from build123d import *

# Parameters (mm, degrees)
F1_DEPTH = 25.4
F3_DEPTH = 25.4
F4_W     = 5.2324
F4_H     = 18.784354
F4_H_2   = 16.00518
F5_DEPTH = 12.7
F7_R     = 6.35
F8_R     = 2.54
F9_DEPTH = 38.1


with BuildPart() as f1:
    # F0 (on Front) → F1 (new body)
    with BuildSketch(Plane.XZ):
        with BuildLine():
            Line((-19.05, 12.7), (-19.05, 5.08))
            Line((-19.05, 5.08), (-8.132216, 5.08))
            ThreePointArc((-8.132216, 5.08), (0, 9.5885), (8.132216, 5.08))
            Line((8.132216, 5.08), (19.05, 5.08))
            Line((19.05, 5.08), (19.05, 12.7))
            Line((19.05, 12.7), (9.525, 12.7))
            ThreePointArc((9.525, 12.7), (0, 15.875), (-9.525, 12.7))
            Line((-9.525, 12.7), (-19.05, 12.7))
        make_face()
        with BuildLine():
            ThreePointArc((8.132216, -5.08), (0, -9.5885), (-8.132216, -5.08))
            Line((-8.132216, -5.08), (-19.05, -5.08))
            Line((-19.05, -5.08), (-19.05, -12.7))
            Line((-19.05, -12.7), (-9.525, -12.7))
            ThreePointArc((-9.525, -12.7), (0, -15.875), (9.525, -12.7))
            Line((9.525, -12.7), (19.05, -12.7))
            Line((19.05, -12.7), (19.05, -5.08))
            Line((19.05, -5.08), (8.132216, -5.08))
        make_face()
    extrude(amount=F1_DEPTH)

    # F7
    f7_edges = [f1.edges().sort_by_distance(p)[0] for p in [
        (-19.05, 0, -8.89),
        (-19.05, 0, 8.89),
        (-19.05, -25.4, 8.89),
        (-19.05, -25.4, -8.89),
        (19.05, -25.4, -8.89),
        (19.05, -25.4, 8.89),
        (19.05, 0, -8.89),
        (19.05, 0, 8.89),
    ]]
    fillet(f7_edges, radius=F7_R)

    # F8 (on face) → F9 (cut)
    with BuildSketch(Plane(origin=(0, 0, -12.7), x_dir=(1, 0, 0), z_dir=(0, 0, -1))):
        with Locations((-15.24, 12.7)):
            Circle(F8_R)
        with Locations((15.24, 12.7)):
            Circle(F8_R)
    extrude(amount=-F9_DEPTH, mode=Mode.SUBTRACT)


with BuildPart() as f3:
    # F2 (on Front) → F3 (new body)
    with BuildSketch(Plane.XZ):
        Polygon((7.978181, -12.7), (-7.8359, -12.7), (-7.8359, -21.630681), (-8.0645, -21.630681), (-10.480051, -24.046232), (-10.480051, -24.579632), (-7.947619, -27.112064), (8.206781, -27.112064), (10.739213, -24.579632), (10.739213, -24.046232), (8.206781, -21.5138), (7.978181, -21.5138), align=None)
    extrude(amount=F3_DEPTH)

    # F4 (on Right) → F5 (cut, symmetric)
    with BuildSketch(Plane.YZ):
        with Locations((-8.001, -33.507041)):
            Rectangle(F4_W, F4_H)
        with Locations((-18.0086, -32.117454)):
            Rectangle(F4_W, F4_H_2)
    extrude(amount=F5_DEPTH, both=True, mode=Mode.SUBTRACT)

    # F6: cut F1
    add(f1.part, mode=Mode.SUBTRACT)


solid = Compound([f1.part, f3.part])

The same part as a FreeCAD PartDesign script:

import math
import FreeCAD as App
import Part
import Sketcher

V = App.Vector
Q = App.Units.Quantity


def edges_at(feature, points):
    """Names of the edges that pass closest to the given points."""
    edges = feature.Shape.Edges
    near = lambda p: min(range(len(edges)), key=lambda i: edges[i].distToShape(Part.Vertex(*p))[0])
    return sorted({f"Edge{near(p) + 1}" for p in points})


def add_polygon(sketch, points):
    """Adds a closed chain of lines whose ends are joined by coincident constraints."""
    first, n = sketch.GeometryCount, len(points)
    for a, b in zip(points, points[1:] + points[:1]):
        sketch.addGeometry(Part.LineSegment(App.Vector(*a, 0), App.Vector(*b, 0)), False)
    for i in range(n):
        sketch.addConstraint(Sketcher.Constraint("Coincident", first + i, 2, first + (i + 1) % n, 1))

doc = App.newDocument("Part")
body = doc.addObject("PartDesign::Body", "Body")
body.AllowCompound = True

# Sketch on XZ plane
sketch1 = doc.addObject("Sketcher::SketchObject", "Sketch")
body.addObject(sketch1)
sketch1.AttachmentSupport = (doc.XZ_Plane, [""])
sketch1.MapMode = "FlatFace"
sketch1.addGeometry(Part.LineSegment(V(-19, 13, 0), V(-19, 5, 0)), False)
sketch1.addGeometry(Part.LineSegment(V(-19, 5, 0), V(-8, 5, 0)), False)
sketch1.addGeometry(Part.ArcOfCircle(Part.Circle(V(0, 0, 0), V(0, 0, 1), 10), math.radians(32), math.radians(148)), False)
sketch1.addGeometry(Part.LineSegment(V(8, 5, 0), V(19, 5, 0)), False)
sketch1.addGeometry(Part.LineSegment(V(19, 5, 0), V(19, 13, 0)), False)
sketch1.addGeometry(Part.LineSegment(V(19, 13, 0), V(10, 13, 0)), False)
sketch1.addGeometry(Part.ArcOfCircle(Part.Circle(V(0, 0, 0), V(0, 0, 1), 16), math.radians(53), math.radians(127)), False)
sketch1.addGeometry(Part.LineSegment(V(-10, 13, 0), V(-19, 13, 0)), False)
sketch1.addGeometry(Part.ArcOfCircle(Part.Circle(V(0, 0, 0), V(0, 0, 1), 10), math.radians(-148), math.radians(-32)), False)
sketch1.addGeometry(Part.LineSegment(V(-8, -5, 0), V(-19, -5, 0)), False)
sketch1.addGeometry(Part.LineSegment(V(-19, -5, 0), V(-19, -13, 0)), False)
sketch1.addGeometry(Part.LineSegment(V(-19, -13, 0), V(-10, -13, 0)), False)
sketch1.addGeometry(Part.ArcOfCircle(Part.Circle(V(0, 0, 0), V(0, 0, 1), 16), math.radians(-127), math.radians(-53)), False)
sketch1.addGeometry(Part.LineSegment(V(10, -13, 0), V(19, -13, 0)), False)
sketch1.addGeometry(Part.LineSegment(V(19, -13, 0), V(19, -5, 0)), False)
sketch1.addGeometry(Part.LineSegment(V(19, -5, 0), V(8, -5, 0)), False)
sketch1.addConstraint(Sketcher.Constraint("Coincident", 0, 2, 1, 1))
sketch1.addConstraint(Sketcher.Constraint("Coincident", 1, 2, 2, 2))
sketch1.addConstraint(Sketcher.Constraint("Coincident", 2, 1, 3, 1))
sketch1.addConstraint(Sketcher.Constraint("Coincident", 3, 2, 4, 1))
sketch1.addConstraint(Sketcher.Constraint("Coincident", 4, 2, 5, 1))
sketch1.addConstraint(Sketcher.Constraint("Coincident", 5, 2, 6, 1))
sketch1.addConstraint(Sketcher.Constraint("Coincident", 6, 2, 7, 1))
sketch1.addConstraint(Sketcher.Constraint("Coincident", 7, 2, 0, 1))
sketch1.addConstraint(Sketcher.Constraint("Coincident", 8, 1, 9, 1))
sketch1.addConstraint(Sketcher.Constraint("Coincident", 9, 2, 10, 1))
sketch1.addConstraint(Sketcher.Constraint("Coincident", 10, 2, 11, 1))
sketch1.addConstraint(Sketcher.Constraint("Coincident", 11, 2, 12, 1))
sketch1.addConstraint(Sketcher.Constraint("Coincident", 12, 2, 13, 1))
sketch1.addConstraint(Sketcher.Constraint("Coincident", 13, 2, 14, 1))
sketch1.addConstraint(Sketcher.Constraint("Coincident", 14, 2, 15, 1))
sketch1.addConstraint(Sketcher.Constraint("Coincident", 15, 2, 8, 2))
sketch1.addConstraint(Sketcher.Constraint("Vertical", 0))
sketch1.addConstraint(Sketcher.Constraint("Horizontal", 1))
sketch1.addConstraint(Sketcher.Constraint("Horizontal", 3))
sketch1.addConstraint(Sketcher.Constraint("Vertical", 4))
sketch1.addConstraint(Sketcher.Constraint("Horizontal", 5))
sketch1.addConstraint(Sketcher.Constraint("Horizontal", 7))
sketch1.addConstraint(Sketcher.Constraint("Horizontal", 9))
sketch1.addConstraint(Sketcher.Constraint("Vertical", 10))
sketch1.addConstraint(Sketcher.Constraint("Horizontal", 11))
sketch1.addConstraint(Sketcher.Constraint("Horizontal", 13))
sketch1.addConstraint(Sketcher.Constraint("Vertical", 14))
sketch1.addConstraint(Sketcher.Constraint("Horizontal", 15))
sketch1.addConstraint(Sketcher.Constraint("Coincident", 2, 3, -1, 1))
sketch1.addConstraint(Sketcher.Constraint("Coincident", 6, 3, -1, 1))
sketch1.addConstraint(Sketcher.Constraint("Coincident", 8, 3, -1, 1))
sketch1.addConstraint(Sketcher.Constraint("Coincident", 12, 3, -1, 1))
sketch1.addConstraint(Sketcher.Constraint("Equal", 2, 8))
sketch1.addConstraint(Sketcher.Constraint("Equal", 6, 12))
sketch1.addConstraint(Sketcher.Constraint("Symmetric", 3, 2, 9, 2, -1, 1))
sketch1.addConstraint(Sketcher.Constraint("Symmetric", 7, 2, 13, 2, -1, 1))
sketch1.addConstraint(Sketcher.Constraint("Symmetric", 0, 2, 3, 2, -2))
sketch1.addConstraint(Sketcher.Constraint("Horizontal", 5, 2, 6, 2))
sketch1.addConstraint(Sketcher.Constraint("Horizontal", 11, 2, 12, 2))
sketch1.addConstraint(Sketcher.Constraint("Horizontal", 9, 2, 14, 2))
sketch1.addConstraint(Sketcher.Constraint("DistanceY", 0, 2, 0, 1, Q("0.3 in")))
sketch1.addConstraint(Sketcher.Constraint("Radius", 6, Q("0.625 in")))
sketch1.addConstraint(Sketcher.Constraint("DistanceY", -1, 1, 0, 2, Q("0.2 in")))
sketch1.addConstraint(Sketcher.Constraint("Radius", 2, Q("0.3775 in")))
sketch1.addConstraint(Sketcher.Constraint("DistanceX", 5, 2, 5, 1, Q("0.375 in")))
pad1 = doc.addObject("PartDesign::Pad", "Pad")
body.addObject(pad1)
pad1.Profile = sketch1
pad1.Length = Q("1 in")
doc.recompute()

fillet = doc.addObject("PartDesign::Fillet", "Fillet")
body.addObject(fillet)
fillet.Base = (pad1, edges_at(pad1, [
    (-19.05, 0, -8.89),
    (-19.05, 0, 8.89),
    (-19.05, -25.4, 8.89),
    (-19.05, -25.4, -8.89),
    (19.05, -25.4, -8.89),
    (19.05, -25.4, 8.89),
    (19.05, 0, -8.89),
    (19.05, 0, 8.89),
]))
fillet.Radius = Q("0.25 in")

# Sketch on XY plane
sketch2 = doc.addObject("Sketcher::SketchObject", "Sketch001")
body.addObject(sketch2)
sketch2.AttachmentSupport = (doc.XY_Plane, [""])
sketch2.MapMode = "FlatFace"
sketch2.AttachmentOffset = App.Placement(V(0, 0, -0.5 * 25.4), App.Rotation())
sketch2.addGeometry(Part.Circle(V(-15.2, -12.7, 0), V(0, 0, 1), 2.5), False)
sketch2.addGeometry(Part.Circle(V(15.2, -12.7, 0), V(0, 0, 1), 2.5), False)
sketch2.addConstraint(Sketcher.Constraint("Equal", 0, 1))
sketch2.addConstraint(Sketcher.Constraint("Symmetric", 0, 3, 1, 3, -2))
sketch2.addConstraint(Sketcher.Constraint("Diameter", 0, Q("0.2 in")))
sketch2.addConstraint(Sketcher.Constraint("DistanceX", 0, 3, -1, 1, Q("0.6 in")))
sketch2.addConstraint(Sketcher.Constraint("DistanceY", 0, 3, -1, 1, Q("0.5 in")))
pocket1 = doc.addObject("PartDesign::Pocket", "Pocket")
body.addObject(pocket1)
pocket1.Profile = sketch2
pocket1.Length = Q("1.5 in")
pocket1.Reversed = True
body2 = doc.addObject("PartDesign::Body", "Body001")

# Sketch on XZ plane
sketch3 = doc.addObject("Sketcher::SketchObject", "Sketch002")
body2.addObject(sketch3)
sketch3.AttachmentSupport = (doc.getObject("XZ_Plane001"), [""])
sketch3.MapMode = "FlatFace"
add_polygon(sketch3, [(7.98, -12.7), (-7.84, -12.7), (-7.84, -21.63), (-8.06, -21.63), (-10.48, -24.05), (-10.48, -24.58), (-7.95, -27.11), (8.21, -27.11), (10.74, -24.58), (10.74, -24.05), (8.21, -21.51), (7.98, -21.51)])  # lines 0-11
sketch3.addConstraint(Sketcher.Constraint("Horizontal", 0))
sketch3.addConstraint(Sketcher.Constraint("Vertical", 1))
sketch3.addConstraint(Sketcher.Constraint("Horizontal", 2))
sketch3.addConstraint(Sketcher.Constraint("Vertical", 4))
sketch3.addConstraint(Sketcher.Constraint("Horizontal", 6))
sketch3.addConstraint(Sketcher.Constraint("Vertical", 8))
sketch3.addConstraint(Sketcher.Constraint("Horizontal", 10))
sketch3.addConstraint(Sketcher.Constraint("Vertical", 11))
sketch3.addConstraint(Sketcher.Constraint("Perpendicular", 3, 5))
sketch3.addConstraint(Sketcher.Constraint("Perpendicular", 5, 7))
sketch3.addConstraint(Sketcher.Constraint("Perpendicular", 7, 9))
sketch3.addConstraint(Sketcher.Constraint("Horizontal", 4, 2, 7, 2))
sketch3.addConstraint(Sketcher.Constraint("Horizontal", 3, 2, 8, 2))
sketch3.addConstraint(Sketcher.Constraint("Vertical", 6, 2, 9, 2))
sketch3.addConstraint(Sketcher.Constraint("Equal", 2, 10))
sketch3.addConstraint(Sketcher.Constraint("Equal", 5, 7))
sketch3.addConstraint(Sketcher.Constraint("DistanceY", 0, 2, -1, 1, Q("0.5 in")))
sketch3.addConstraint(Sketcher.Constraint("DistanceX", 2, 2, 2, 1, Q("0.009 in")))
sketch3.addConstraint(Sketcher.Constraint("DistanceX", 6, 1, 6, 2, Q("0.636 in")))
sketch3.addConstraint(Sketcher.Constraint("DistanceY", 4, 2, 4, 1, Q("0.021 in")))
sketch3.addConstraint(Sketcher.Constraint("DistanceY", 11, 1, 11, 2, Q("0.347 in")))
sketch3.addConstraint(Sketcher.Constraint("Distance", 5, Q("0.141 in")))
sketch3.addConstraint(Sketcher.Constraint("DistanceX", 0, 2, -1, 1, Q("0.3085 in")))
sketch3.addConstraint(Sketcher.Constraint("DistanceX", 0, 2, 0, 1, 15.814081))
pad2 = doc.addObject("PartDesign::Pad", "Pad001")
body2.addObject(pad2)
pad2.Profile = sketch3
pad2.Length = Q("1 in")

# Sketch on YZ plane
sketch4 = doc.addObject("Sketcher::SketchObject", "Sketch003")
body2.addObject(sketch4)
sketch4.AttachmentSupport = (doc.getObject("YZ_Plane001"), [""])
sketch4.MapMode = "FlatFace"
add_polygon(sketch4, [(-11, -24), (-11, -43), (-5, -43), (-5, -24)])  # lines 0-3
add_polygon(sketch4, [(-21, -24), (-21, -40), (-15, -40), (-15, -24)])  # lines 4-7
sketch4.addConstraint(Sketcher.Constraint("Vertical", 0))
sketch4.addConstraint(Sketcher.Constraint("Horizontal", 1))
sketch4.addConstraint(Sketcher.Constraint("Vertical", 2))
sketch4.addConstraint(Sketcher.Constraint("Horizontal", 3))
sketch4.addConstraint(Sketcher.Constraint("Vertical", 4))
sketch4.addConstraint(Sketcher.Constraint("Horizontal", 5))
sketch4.addConstraint(Sketcher.Constraint("Vertical", 6))
sketch4.addConstraint(Sketcher.Constraint("Horizontal", 7))
sketch4.addConstraint(Sketcher.Constraint("Horizontal", 3, 2, 6, 2))
sketch4.addConstraint(Sketcher.Constraint("Equal", 3, 5))
sketch4.addConstraint(Sketcher.Constraint("DistanceX", 4, 2, 1, 2, Q("0.6 in")))
sketch4.addConstraint(Sketcher.Constraint("DistanceX", 1, 1, 1, 2, Q("0.206 in")))
sketch4.addConstraint(Sketcher.Constraint("DistanceX", 0, 2, -1, 1, Q("0.418 in")))
sketch4.addConstraint(Sketcher.Constraint("DistanceY", 4, 2, 4, 1, 16.00518))
sketch4.addConstraint(Sketcher.Constraint("DistanceY", 0, 2, 0, 1, 18.784354))
sketch4.addConstraint(Sketcher.Constraint("DistanceY", 0, 2, -1, 1, 42.899218))
pocket2 = doc.addObject("PartDesign::Pocket", "Pocket001")
body2.addObject(pocket2)
pocket2.Profile = sketch4
pocket2.Length = Q("1 in")
pocket2.Midplane = True
doc.recompute()

body3 = doc.addObject("PartDesign::Body", "Body002")
body3.BaseFeature = body
boolean = doc.addObject("PartDesign::Boolean", "Boolean")
body2.addObject(boolean)
boolean.Type = "Cut"
boolean.addObjects([body3])
doc.recompute()

doc.recompute()
